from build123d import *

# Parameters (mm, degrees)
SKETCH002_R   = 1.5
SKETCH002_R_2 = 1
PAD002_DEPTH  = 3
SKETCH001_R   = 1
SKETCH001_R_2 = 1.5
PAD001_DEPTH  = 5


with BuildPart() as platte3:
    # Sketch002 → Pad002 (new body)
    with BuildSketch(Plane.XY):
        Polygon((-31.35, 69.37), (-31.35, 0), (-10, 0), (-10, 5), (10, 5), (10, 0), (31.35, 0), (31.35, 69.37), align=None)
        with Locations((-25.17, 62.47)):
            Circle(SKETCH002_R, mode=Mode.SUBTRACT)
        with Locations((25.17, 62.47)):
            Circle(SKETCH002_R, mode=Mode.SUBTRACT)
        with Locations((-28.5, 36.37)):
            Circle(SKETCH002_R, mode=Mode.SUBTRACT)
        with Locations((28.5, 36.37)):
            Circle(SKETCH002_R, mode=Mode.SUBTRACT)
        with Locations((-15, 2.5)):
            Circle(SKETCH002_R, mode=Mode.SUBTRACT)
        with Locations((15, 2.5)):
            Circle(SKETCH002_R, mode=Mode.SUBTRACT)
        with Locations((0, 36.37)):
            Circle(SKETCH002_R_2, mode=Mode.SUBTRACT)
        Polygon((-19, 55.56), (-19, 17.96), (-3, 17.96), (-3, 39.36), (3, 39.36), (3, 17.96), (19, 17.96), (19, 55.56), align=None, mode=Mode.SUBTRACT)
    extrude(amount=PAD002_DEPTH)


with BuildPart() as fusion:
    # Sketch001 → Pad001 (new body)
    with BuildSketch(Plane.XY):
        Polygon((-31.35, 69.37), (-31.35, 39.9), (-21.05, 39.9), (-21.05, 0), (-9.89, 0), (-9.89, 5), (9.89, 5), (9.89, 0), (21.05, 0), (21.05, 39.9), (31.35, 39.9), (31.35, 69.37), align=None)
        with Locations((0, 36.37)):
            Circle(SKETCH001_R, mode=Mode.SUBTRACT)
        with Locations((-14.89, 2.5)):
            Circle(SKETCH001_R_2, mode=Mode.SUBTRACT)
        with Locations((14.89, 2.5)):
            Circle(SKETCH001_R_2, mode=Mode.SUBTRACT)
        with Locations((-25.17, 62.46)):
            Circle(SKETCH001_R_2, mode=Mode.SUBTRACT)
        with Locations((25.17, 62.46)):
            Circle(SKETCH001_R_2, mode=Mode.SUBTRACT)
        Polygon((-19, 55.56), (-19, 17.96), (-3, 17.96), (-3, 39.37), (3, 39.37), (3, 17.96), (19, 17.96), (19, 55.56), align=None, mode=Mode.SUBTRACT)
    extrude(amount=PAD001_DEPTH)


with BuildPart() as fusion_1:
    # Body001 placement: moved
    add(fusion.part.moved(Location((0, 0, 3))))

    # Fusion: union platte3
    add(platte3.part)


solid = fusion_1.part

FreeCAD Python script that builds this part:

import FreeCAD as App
import Part
import Sketcher
from FreeCAD import Vector
Q = App.Units.Quantity

doc = App.newDocument("Part")
body = doc.addObject("PartDesign::Body", "Body")

sketch1 = body.newObject("Sketcher::SketchObject", "Sketch")
sketch1.AttachmentSupport = (doc.getObject("XY_Plane"), [""])
sketch1.MapMode = "FlatFace"
sketch1.addGeometry(Part.LineSegment(Vector(-31.4, 69.4, 0), Vector(-31.4, 0, 0)), False)
sketch1.addGeometry(Part.LineSegment(Vector(-31.4, 0, 0), Vector(-10, 0, 0)), False)
sketch1.addGeometry(Part.LineSegment(Vector(-10, 0, 0), Vector(-10, 5, 0)), False)
sketch1.addGeometry(Part.LineSegment(Vector(-10, 5, 0), Vector(10, 5, 0)), False)
sketch1.addGeometry(Part.LineSegment(Vector(10, 5, 0), Vector(10, 0, 0)), False)
sketch1.addGeometry(Part.LineSegment(Vector(10, 0, 0), Vector(31.4, 0, 0)), False)
sketch1.addGeometry(Part.LineSegment(Vector(31.4, 0, 0), Vector(31.4, 69.4, 0)), False)
sketch1.addGeometry(Part.LineSegment(Vector(31.4, 69.4, 0), Vector(-31.4, 69.4, 0)), False)
sketch1.addGeometry(Part.Circle(Vector(-15, 2.5, 0), Vector(0, 0, 1), 1.5), False)
sketch1.addGeometry(Part.Circle(Vector(15, 2.5, 0), Vector(0, 0, 1), 1.5), False)
sketch1.addGeometry(Part.Circle(Vector(-28.5, 36.4, 0), Vector(0, 0, 1), 1.5), False)
sketch1.addGeometry(Part.Circle(Vector(-25.2, 62.5, 0), Vector(0, 0, 1), 1.5), False)
sketch1.addGeometry(Part.Circle(Vector(0, 36.4, 0), Vector(0, 0, 1), 1), False)
sketch1.addGeometry(Part.LineSegment(Vector(-19, 18, 0), Vector(-19, 55.6, 0)), False)
sketch1.addGeometry(Part.LineSegment(Vector(-19, 55.6, 0), Vector(19, 55.6, 0)), False)
sketch1.addGeometry(Part.LineSegment(Vector(19, 55.6, 0), Vector(19, 18, 0)), False)
sketch1.addGeometry(Part.LineSegment(Vector(19, 18, 0), Vector(3, 18, 0)), False)
sketch1.addGeometry(Part.LineSegment(Vector(3, 18, 0), Vector(3, 39.4, 0)), False)
sketch1.addGeometry(Part.LineSegment(Vector(3, 39.4, 0), Vector(-3, 39.4, 0)), False)
sketch1.addGeometry(Part.LineSegment(Vector(-3, 39.4, 0), Vector(-3, 18, 0)), False)
sketch1.addGeometry(Part.LineSegment(Vector(-3, 18, 0), Vector(-19, 18, 0)), False)
sketch1.addGeometry(Part.Circle(Vector(28.5, 36.4, 0), Vector(0, 0, 1), 1.5), False)
sketch1.addGeometry(Part.Circle(Vector(25.2, 62.5, 0), Vector(0, 0, 1), 1.5), False)
sketch1.addConstraint(Sketcher.Constraint("Coincident", 0, 2, 1, 1))
sketch1.addConstraint(Sketcher.Constraint("Coincident", 1, 2, 2, 1))
sketch1.addConstraint(Sketcher.Constraint("Coincident", 2, 2, 3, 1))
sketch1.addConstraint(Sketcher.Constraint("Coincident", 3, 2, 4, 1))
sketch1.addConstraint(Sketcher.Constraint("Coincident", 4, 2, 5, 1))
sketch1.addConstraint(Sketcher.Constraint("Coincident", 5, 2, 6, 1))
sketch1.addConstraint(Sketcher.Constraint("Coincident", 6, 2, 7, 1))
sketch1.addConstraint(Sketcher.Constraint("Coincident", 7, 2, 0, 1))
sketch1.addConstraint(Sketcher.Constraint("Coincident", 13, 2, 14, 1))
sketch1.addConstraint(Sketcher.Constraint("Coincident", 14, 2, 15, 1))
sketch1.addConstraint(Sketcher.Constraint("Coincident", 15, 2, 16, 1))
sketch1.addConstraint(Sketcher.Constraint("Coincident", 16, 2, 17, 1))
sketch1.addConstraint(Sketcher.Constraint("Coincident", 17, 2, 18, 1))
sketch1.addConstraint(Sketcher.Constraint("Coincident", 18, 2, 19, 1))
sketch1.addConstraint(Sketcher.Constraint("Coincident", 19, 2, 20, 1))
sketch1.addConstraint(Sketcher.Constraint("Coincident", 20, 2, 13, 1))
sketch1.addConstraint(Sketcher.Constraint("Vertical", 0))
sketch1.addConstraint(Sketcher.Constraint("Horizontal", 1))
sketch1.addConstraint(Sketcher.Constraint("Vertical", 2))
sketch1.addConstraint(Sketcher.Constraint("Horizontal", 3))
sketch1.addConstraint(Sketcher.Constraint("Vertical", 4))
sketch1.addConstraint(Sketcher.Constraint("Horizontal", 5))
sketch1.addConstraint(Sketcher.Constraint("Vertical", 6))
sketch1.addConstraint(Sketcher.Constraint("Horizontal", 7))
sketch1.addConstraint(Sketcher.Constraint("Vertical", 13))
sketch1.addConstraint(Sketcher.Constraint("Horizontal", 14))
sketch1.addConstraint(Sketcher.Constraint("Vertical", 15))
sketch1.addConstraint(Sketcher.Constraint("Horizontal", 16))
sketch1.addConstraint(Sketcher.Constraint("Vertical", 17))
sketch1.addConstraint(Sketcher.Constraint("Horizontal", 18))
sketch1.addConstraint(Sketcher.Constraint("Vertical", 19))
sketch1.addConstraint(Sketcher.Constraint("Horizontal", 20))
sketch1.addConstraint(Sketcher.Constraint("Equal", 8, 9))
sketch1.addConstraint(Sketcher.Constraint("Equal", 9, 10))
sketch1.addConstraint(Sketcher.Constraint("Equal", 10, 11))
sketch1.addConstraint(Sketcher.Constraint("Equal", 11, 21))
sketch1.addConstraint(Sketcher.Constraint("Equal", 21, 22))
sketch1.addConstraint(Sketcher.Constraint("Symmetric", 1, 2, 4, 2, -1, 1))
sketch1.addConstraint(Sketcher.Constraint("Symmetric", 8, 3, 9, 3, -2))
sketch1.addConstraint(Sketcher.Constraint("Symmetric", 10, 3, 21, 3, -2))
sketch1.addConstraint(Sketcher.Constraint("Symmetric", 11, 3, 22, 3, -2))
sketch1.addConstraint(Sketcher.Constraint("Symmetric", 0, 2, 5, 2, -2))
sketch1.addConstraint(Sketcher.Constraint("Symmetric", 16, 2, 19, 2, -2))
sketch1.addConstraint(Sketcher.Constraint("PointOnObject", 12, 3, -2))
sketch1.addConstraint(Sketcher.Constraint("Horizontal", 10, 3, 12, 3))
sketch1.addConstraint(Sketcher.Constraint("Equal", 16, 20))
sketch1.addConstraint(Sketcher.Constraint("Diameter", 8, Q("3 mm")))
sketch1.addConstraint(Sketcher.Constraint("Diameter", 12, Q("2 mm")))
sketch1.addConstraint(Sketcher.Constraint("DistanceX", 3, 1, 3, 2, Q("20 mm")))
sketch1.addConstraint(Sketcher.Constraint("DistanceX", 14, 1, 14, 2, Q("38 mm")))
sketch1.addConstraint(Sketcher.Constraint("DistanceX", 16, 2, 16, 1, Q("16 mm")))
sketch1.addConstraint(Sketcher.Constraint("DistanceY", 2, 1, 2, 2, Q("5 mm")))
sketch1.addConstraint(Sketcher.Constraint("DistanceX", 7, 2, 7, 1, Q("62.7 mm")))
sketch1.addConstraint(Sketcher.Constraint("DistanceY", 13, 1, 13, 2, Q("37.6 mm")))
sketch1.addConstraint(Sketcher.Constraint("DistanceY", 17, 1, 17, 2, Q("21.4 mm")))
sketch1.addConstraint(Sketcher.Constraint("DistanceX", 8, 3, -1, 1, Q("15 mm")))
sketch1.addConstraint(Sketcher.Constraint("DistanceX", 10, 3, 21, 3, Q("57 mm")))
sketch1.addConstraint(Sketcher.Constraint("DistanceY", 21, 3, 6, 2, Q("33 mm")))
sketch1.addConstraint(Sketcher.Constraint("DistanceY", 0, 2, 0, 1, Q("69.37 mm")))
sketch1.addConstraint(Sketcher.Constraint("DistanceY", -1, 1, 8, 3, Q("2.5 mm")))
sketch1.addConstraint(Sketcher.Constraint("DistanceY", 10, 3, 11, 3, Q("26.1 mm")))
sketch1.addConstraint(Sketcher.Constraint("DistanceX", 11, 3, -1, 1, Q("25.17 mm")))
sketch1.addConstraint(Sketcher.Constraint("DistanceY", -1, 1, 13, 2, Q("55.56 mm")))
pad1 = body.newObject("PartDesign::Pad", "Pad")
pad1.Profile = sketch1
pad1.Length = 3
body2 = doc.addObject("PartDesign::Body", "Body001")

sketch2 = body2.newObject("Sketcher::SketchObject", "Sketch001")
sketch2.AttachmentSupport = (doc.getObject("XY_Plane001"), [""])
sketch2.MapMode = "FlatFace"
sketch2.addGeometry(Part.LineSegment(Vector(-31.4, 69.4, 0), Vector(-31.4, 39.9, 0)), False)
sketch2.addGeometry(Part.LineSegment(Vector(-31.4, 39.9, 0), Vector(-21.1, 39.9, 0)), False)
sketch2.addGeometry(Part.LineSegment(Vector(-21.1, 39.9, 0), Vector(-21.1, 0, 0)), False)
sketch2.addGeometry(Part.LineSegment(Vector(-21.1, 0, 0), Vector(-9.9, 0, 0)), False)
sketch2.addGeometry(Part.LineSegment(Vector(-9.9, 0, 0), Vector(-9.9, 5, 0)), False)
sketch2.addGeometry(Part.LineSegment(Vector(-9.9, 5, 0), Vector(9.9, 5, 0)), False)
sketch2.addGeometry(Part.LineSegment(Vector(9.9, 5, 0), Vector(9.9, 0, 0)), False)
sketch2.addGeometry(Part.LineSegment(Vector(9.9, 0, 0), Vector(21.1, 0, 0)), False)
sketch2.addGeometry(Part.LineSegment(Vector(21.1, 0, 0), Vector(21.1, 39.9, 0)), False)
sketch2.addGeometry(Part.LineSegment(Vector(21.1, 39.9, 0), Vector(31.4, 39.9, 0)), False)
sketch2.addGeometry(Part.LineSegment(Vector(31.4, 39.9, 0), Vector(31.4, 69.4, 0)), False)
sketch2.addGeometry(Part.LineSegment(Vector(31.4, 69.4, 0), Vector(-31.4, 69.4, 0)), False)
sketch2.addGeometry(Part.Circle(Vector(-14.9, 2.5, 0), Vector(0, 0, 1), 1.5), False)
sketch2.addGeometry(Part.Circle(Vector(14.9, 2.5, 0), Vector(0, 0, 1), 1.5), False)
sketch2.addGeometry(Part.Circle(Vector(0, 36.4, 0), Vector(0, 0, 1), 1), False)
sketch2.addGeometry(Part.LineSegment(Vector(-19, 18, 0), Vector(-19, 55.6, 0)), False)
sketch2.addGeometry(Part.LineSegment(Vector(-19, 55.6, 0), Vector(19, 55.6, 0)), False)
sketch2.addGeometry(Part.LineSegment(Vector(19, 55.6, 0), Vector(19, 18, 0)), False)
sketch2.addGeometry(Part.LineSegment(Vector(19, 18, 0), Vector(3, 18, 0)), False)
sketch2.addGeometry(Part.LineSegment(Vector(3, 18, 0), Vector(3, 39.4, 0)), False)
sketch2.addGeometry(Part.LineSegment(Vector(3, 39.4, 0), Vector(-3, 39.4, 0)), False)
sketch2.addGeometry(Part.LineSegment(Vector(-3, 39.4, 0), Vector(-3, 18, 0)), False)
sketch2.addGeometry(Part.LineSegment(Vector(-3, 18, 0), Vector(-19, 18, 0)), False)
sketch2.addGeometry(Part.Circle(Vector(-25.2, 62.5, 0), Vector(0, 0, 1), 1.5), False)
sketch2.addGeometry(Part.Circle(Vector(25.2, 62.5, 0), Vector(0, 0, 1), 1.5), False)
sketch2.addConstraint(Sketcher.Constraint("Coincident", 0, 2, 1, 1))
sketch2.addConstraint(Sketcher.Constraint("Coincident", 1, 2, 2, 1))
sketch2.addConstraint(Sketcher.Constraint("Coincident", 2, 2, 3, 1))
sketch2.addConstraint(Sketcher.Constraint("Coincident", 3, 2, 4, 1))
sketch2.addConstraint(Sketcher.Constraint("Coincident", 4, 2, 5, 1))
sketch2.addConstraint(Sketcher.Constraint("Coincident", 5, 2, 6, 1))
sketch2.addConstraint(Sketcher.Constraint("Coincident", 6, 2, 7, 1))
sketch2.addConstraint(Sketcher.Constraint("Coincident", 7, 2, 8, 1))
sketch2.addConstraint(Sketcher.Constraint("Coincident", 8, 2, 9, 1))
sketch2.addConstraint(Sketcher.Constraint("Coincident", 9, 2, 10, 1))
sketch2.addConstraint(Sketcher.Constraint("Coincident", 10, 2, 11, 1))
sketch2.addConstraint(Sketcher.Constraint("Coincident", 11, 2, 0, 1))
sketch2.addConstraint(Sketcher.Constraint("Coincident", 15, 2, 16, 1))
sketch2.addConstraint(Sketcher.Constraint("Coincident", 16, 2, 17, 1))
sketch2.addConstraint(Sketcher.Constraint("Coincident", 17, 2, 18, 1))
sketch2.addConstraint(Sketcher.Constraint("Coincident", 18, 2, 19, 1))
sketch2.addConstraint(Sketcher.Constraint("Coincident", 19, 2, 20, 1))
sketch2.addConstraint(Sketcher.Constraint("Coincident", 20, 2, 21, 1))
sketch2.addConstraint(Sketcher.Constraint("Coincident", 21, 2, 22, 1))
sketch2.addConstraint(Sketcher.Constraint("Coincident", 22, 2, 15, 1))
sketch2.addConstraint(Sketcher.Constraint("Vertical", 0))
sketch2.addConstraint(Sketcher.Constraint("Horizontal", 1))
sketch2.addConstraint(Sketcher.Constraint("Vertical", 2))
sketch2.addConstraint(Sketcher.Constraint("Horizontal", 3))
sketch2.addConstraint(Sketcher.Constraint("Vertical", 4))
sketch2.addConstraint(Sketcher.Constraint("Horizontal", 5))
sketch2.addConstraint(Sketcher.Constraint("Vertical", 6))
sketch2.addConstraint(Sketcher.Constraint("Horizontal", 7))
sketch2.addConstraint(Sketcher.Constraint("Vertical", 8))
sketch2.addConstraint(Sketcher.Constraint("Horizontal", 9))
sketch2.addConstraint(Sketcher.Constraint("Vertical", 10))
sketch2.addConstraint(Sketcher.Constraint("Horizontal", 11))
sketch2.addConstraint(Sketcher.Constraint("Vertical", 15))
sketch2.addConstraint(Sketcher.Constraint("Horizontal", 16))
sketch2.addConstraint(Sketcher.Constraint("Vertical", 17))
sketch2.addConstraint(Sketcher.Constraint("Horizontal", 18))
sketch2.addConstraint(Sketcher.Constraint("Vertical", 19))
sketch2.addConstraint(Sketcher.Constraint("Horizontal", 20))
sketch2.addConstraint(Sketcher.Constraint("Vertical", 21))
sketch2.addConstraint(Sketcher.Constraint("Horizontal", 22))
sketch2.addConstraint(Sketcher.Constraint("Equal", 12, 13))
sketch2.addConstraint(Sketcher.Constraint("Equal", 13, 23))
sketch2.addConstraint(Sketcher.Constraint("Equal", 23, 24))
sketch2.addConstraint(Sketcher.Constraint("Symmetric", 3, 2, 6, 2, -1, 1))
sketch2.addConstraint(Sketcher.Constraint("Symmetric", 12, 3, 13, 3, -2))
sketch2.addConstraint(Sketcher.Constraint("Symmetric", 23, 3, 24, 3, -2))
sketch2.addConstraint(Sketcher.Constraint("Symmetric", 2, 2, 7, 2, -2))
sketch2.addConstraint(Sketcher.Constraint("Symmetric", 0, 2, 9, 2, -2))
sketch2.addConstraint(Sketcher.Constraint("Symmetric", 18, 2, 21, 2, -2))
sketch2.addConstraint(Sketcher.Constraint("PointOnObject", 14, 3, -2))
sketch2.addConstraint(Sketcher.Constraint("Equal", 18, 22))
sketch2.addConstraint(Sketcher.Constraint("Diameter", 12, Q("3 mm")))
sketch2.addConstraint(Sketcher.Constraint("Diameter", 14, Q("2 mm")))
sketch2.addConstraint(Sketcher.Constraint("DistanceX", 16, 1, 16, 2, Q("38 mm")))
sketch2.addConstraint(Sketcher.Constraint("DistanceX", 18, 2, 18, 1, Q("16 mm")))
sketch2.addConstraint(Sketcher.Constraint("DistanceY", 4, 1, 4, 2, Q("5 mm")))
sketch2.addConstraint(Sketcher.Constraint("DistanceX", 1, 1, 1, 2, Q("10.3 mm")))
sketch2.addConstraint(Sketcher.Constraint("DistanceX", 11, 2, 11, 1, Q("62.7 mm")))
sketch2.addConstraint(Sketcher.Constraint("DistanceY", 2, 2, 2, 1, Q("39.9 mm")))
sketch2.addConstraint(Sketcher.Constraint("DistanceY", 15, 1, 15, 2, Q("37.6 mm")))
sketch2.addConstraint(Sketcher.Constraint("DistanceX", 12, 3, 3, 2, Q("5 mm")))
sketch2.addConstraint(Sketcher.Constraint("DistanceY", 14, 3, 10, 2, Q("33 mm")))
sketch2.addConstraint(Sketcher.Constraint("DistanceY", 14, 3, 19, 2, Q("3 mm")))
sketch2.addConstraint(Sketcher.Constraint("DistanceX", 3, 1, 3, 2, Q("11.16 mm")))
sketch2.addConstraint(Sketcher.Constraint("DistanceY", 0, 2, 0, 1, Q("29.47 mm")))
sketch2.addConstraint(Sketcher.Constraint("DistanceY", 19, 1, 19, 2, Q("21.41 mm")))
sketch2.addConstraint(Sketcher.Constraint("DistanceY", -1, 1, 12, 3, Q("2.5 mm")))
sketch2.addConstraint(Sketcher.Constraint("DistanceY", 15, 2, 23, 3, Q("6.9 mm")))
sketch2.addConstraint(Sketcher.Constraint("DistanceX", 23, 3, -1, 1, Q("25.17 mm")))
pad2 = body2.newObject("PartDesign::Pad", "Pad001")
pad2.Profile = sketch2
pad2.Length = 5
body3 = doc.addObject("PartDesign::Body", "Body002")
doc.recompute()

body2.Placement = App.Placement(Vector(0, 0, 3), App.Rotation(Vector(0, 0, 1), 0))
boolean = body3.newObject("PartDesign::Boolean", "Boolean")
boolean.Type = "Fuse"
boolean.addObjects([body2])
doc.recompute()

boolean2 = body3.newObject("PartDesign::Boolean", "Boolean001")
boolean2.Type = "Fuse"
boolean2.addObjects([body])

doc.recompute()
